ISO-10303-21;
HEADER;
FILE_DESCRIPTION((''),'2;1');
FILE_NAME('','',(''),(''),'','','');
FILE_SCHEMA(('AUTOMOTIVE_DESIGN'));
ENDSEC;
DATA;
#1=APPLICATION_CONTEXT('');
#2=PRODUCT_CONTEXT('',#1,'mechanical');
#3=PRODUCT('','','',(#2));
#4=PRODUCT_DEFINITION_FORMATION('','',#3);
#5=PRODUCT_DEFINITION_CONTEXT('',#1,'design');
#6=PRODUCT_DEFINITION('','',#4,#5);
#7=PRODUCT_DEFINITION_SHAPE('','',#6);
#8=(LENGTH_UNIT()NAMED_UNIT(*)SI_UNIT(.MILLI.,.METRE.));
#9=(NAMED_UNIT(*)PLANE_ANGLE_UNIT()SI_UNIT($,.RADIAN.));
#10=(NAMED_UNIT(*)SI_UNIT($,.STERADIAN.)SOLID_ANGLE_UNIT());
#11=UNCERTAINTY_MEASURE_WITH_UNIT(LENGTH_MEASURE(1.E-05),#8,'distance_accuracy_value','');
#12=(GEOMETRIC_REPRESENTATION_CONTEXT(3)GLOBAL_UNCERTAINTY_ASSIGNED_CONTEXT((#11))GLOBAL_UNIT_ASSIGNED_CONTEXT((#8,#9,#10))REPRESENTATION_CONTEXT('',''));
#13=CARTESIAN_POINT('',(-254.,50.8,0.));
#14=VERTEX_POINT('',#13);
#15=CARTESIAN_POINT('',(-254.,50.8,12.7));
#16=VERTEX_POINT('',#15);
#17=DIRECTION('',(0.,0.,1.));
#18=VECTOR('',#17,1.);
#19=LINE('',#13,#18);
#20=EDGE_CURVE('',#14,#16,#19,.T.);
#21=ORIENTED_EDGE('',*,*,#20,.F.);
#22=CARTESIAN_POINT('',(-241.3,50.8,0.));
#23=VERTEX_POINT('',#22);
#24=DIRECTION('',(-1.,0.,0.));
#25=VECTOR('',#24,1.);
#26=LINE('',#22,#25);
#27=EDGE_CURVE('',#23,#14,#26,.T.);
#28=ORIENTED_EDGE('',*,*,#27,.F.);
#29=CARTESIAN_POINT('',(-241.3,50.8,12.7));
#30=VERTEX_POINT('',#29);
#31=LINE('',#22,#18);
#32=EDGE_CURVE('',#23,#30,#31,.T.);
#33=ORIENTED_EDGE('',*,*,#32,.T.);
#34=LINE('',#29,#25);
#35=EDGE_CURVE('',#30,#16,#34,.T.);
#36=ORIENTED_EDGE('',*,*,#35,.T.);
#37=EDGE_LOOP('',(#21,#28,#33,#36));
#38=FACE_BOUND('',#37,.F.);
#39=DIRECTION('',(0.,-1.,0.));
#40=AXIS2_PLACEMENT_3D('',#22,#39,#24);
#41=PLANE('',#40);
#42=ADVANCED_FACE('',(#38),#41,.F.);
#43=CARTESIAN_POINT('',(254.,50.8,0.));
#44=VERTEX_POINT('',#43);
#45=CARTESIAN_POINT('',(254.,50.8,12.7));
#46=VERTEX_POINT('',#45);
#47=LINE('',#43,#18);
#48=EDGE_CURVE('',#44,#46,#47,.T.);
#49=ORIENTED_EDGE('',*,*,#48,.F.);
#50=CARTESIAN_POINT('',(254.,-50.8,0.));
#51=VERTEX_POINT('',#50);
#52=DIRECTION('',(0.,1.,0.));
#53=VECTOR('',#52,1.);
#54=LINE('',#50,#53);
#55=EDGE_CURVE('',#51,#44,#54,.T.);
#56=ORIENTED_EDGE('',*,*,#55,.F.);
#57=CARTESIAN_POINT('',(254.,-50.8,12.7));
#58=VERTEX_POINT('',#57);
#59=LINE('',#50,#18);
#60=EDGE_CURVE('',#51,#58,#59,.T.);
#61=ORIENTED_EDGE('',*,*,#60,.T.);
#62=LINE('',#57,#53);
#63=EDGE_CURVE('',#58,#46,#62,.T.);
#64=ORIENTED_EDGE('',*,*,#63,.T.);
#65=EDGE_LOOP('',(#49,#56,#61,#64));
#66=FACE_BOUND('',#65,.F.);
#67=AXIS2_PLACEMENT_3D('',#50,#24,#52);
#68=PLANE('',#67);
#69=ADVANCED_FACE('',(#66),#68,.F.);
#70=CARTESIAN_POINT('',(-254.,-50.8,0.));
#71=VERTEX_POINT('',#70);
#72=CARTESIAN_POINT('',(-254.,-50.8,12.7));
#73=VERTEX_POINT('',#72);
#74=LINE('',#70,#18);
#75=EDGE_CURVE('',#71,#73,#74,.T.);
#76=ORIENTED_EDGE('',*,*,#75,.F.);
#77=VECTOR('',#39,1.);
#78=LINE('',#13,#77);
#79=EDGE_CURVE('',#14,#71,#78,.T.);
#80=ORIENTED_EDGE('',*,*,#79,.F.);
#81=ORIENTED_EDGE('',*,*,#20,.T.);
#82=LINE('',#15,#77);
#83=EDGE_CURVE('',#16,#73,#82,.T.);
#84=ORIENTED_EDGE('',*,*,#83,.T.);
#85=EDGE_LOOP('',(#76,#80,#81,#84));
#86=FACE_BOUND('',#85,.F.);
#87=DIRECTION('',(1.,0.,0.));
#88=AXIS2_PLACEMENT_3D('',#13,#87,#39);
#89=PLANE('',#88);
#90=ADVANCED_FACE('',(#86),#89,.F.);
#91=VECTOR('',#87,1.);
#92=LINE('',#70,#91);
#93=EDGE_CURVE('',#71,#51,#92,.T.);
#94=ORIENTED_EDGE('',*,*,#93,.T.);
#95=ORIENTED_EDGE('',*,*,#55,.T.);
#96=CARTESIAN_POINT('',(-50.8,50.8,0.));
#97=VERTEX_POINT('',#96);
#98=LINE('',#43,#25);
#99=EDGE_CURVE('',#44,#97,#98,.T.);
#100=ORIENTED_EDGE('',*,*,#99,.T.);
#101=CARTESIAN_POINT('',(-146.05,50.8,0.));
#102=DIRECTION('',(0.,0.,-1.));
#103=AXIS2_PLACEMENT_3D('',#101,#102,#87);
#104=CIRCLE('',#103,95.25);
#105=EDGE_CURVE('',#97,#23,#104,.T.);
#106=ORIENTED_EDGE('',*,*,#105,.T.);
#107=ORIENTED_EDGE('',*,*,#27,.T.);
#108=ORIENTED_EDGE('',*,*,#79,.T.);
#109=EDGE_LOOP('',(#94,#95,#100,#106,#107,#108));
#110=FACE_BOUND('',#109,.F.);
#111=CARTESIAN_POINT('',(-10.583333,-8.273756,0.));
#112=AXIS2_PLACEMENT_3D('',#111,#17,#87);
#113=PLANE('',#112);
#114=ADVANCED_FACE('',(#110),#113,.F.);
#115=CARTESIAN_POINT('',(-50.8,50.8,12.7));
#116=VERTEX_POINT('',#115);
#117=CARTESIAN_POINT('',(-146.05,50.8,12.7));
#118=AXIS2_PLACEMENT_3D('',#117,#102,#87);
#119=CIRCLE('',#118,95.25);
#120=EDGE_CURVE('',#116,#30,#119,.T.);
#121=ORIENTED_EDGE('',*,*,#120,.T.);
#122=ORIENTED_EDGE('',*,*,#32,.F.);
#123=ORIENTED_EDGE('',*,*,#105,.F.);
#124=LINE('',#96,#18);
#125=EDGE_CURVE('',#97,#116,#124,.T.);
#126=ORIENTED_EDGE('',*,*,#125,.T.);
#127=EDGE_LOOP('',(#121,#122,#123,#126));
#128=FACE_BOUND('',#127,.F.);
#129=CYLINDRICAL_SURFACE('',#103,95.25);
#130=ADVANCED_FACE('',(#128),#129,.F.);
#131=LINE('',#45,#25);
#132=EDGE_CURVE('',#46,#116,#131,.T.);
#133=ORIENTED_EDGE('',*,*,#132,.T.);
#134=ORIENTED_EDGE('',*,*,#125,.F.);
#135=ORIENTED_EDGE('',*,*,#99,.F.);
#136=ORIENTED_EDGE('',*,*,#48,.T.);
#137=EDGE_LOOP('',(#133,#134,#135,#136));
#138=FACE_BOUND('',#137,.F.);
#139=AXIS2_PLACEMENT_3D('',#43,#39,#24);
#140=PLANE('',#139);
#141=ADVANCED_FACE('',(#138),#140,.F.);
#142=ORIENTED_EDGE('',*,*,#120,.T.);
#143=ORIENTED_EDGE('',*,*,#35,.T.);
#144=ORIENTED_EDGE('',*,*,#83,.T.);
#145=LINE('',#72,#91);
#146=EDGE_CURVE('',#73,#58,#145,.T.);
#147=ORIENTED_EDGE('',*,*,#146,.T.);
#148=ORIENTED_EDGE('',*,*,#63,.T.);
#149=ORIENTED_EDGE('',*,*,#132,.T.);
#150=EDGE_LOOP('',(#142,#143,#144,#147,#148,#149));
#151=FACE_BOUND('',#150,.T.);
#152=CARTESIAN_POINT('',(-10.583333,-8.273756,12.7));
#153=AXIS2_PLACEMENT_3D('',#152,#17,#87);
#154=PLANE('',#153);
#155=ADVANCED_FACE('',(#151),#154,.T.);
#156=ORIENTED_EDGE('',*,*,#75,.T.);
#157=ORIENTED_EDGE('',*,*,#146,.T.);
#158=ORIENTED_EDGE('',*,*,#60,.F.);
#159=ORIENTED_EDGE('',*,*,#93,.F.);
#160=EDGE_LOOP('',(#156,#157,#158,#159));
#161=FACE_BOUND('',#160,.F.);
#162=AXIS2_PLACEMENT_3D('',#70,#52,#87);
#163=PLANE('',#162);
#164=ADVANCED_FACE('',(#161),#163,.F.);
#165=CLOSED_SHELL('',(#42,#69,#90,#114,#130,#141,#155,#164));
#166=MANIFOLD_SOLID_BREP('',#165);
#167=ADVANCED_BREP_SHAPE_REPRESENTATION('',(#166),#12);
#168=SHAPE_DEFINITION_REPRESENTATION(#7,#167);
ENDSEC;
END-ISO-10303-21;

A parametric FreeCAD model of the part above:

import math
import FreeCAD as App
import Part
import Sketcher
from FreeCAD import Vector
Q = App.Units.Quantity

doc = App.newDocument("Part")
body = doc.addObject("PartDesign::Body", "Body")

# Sketch on XY plane
sketch1 = doc.addObject("Sketcher::SketchObject", "Sketch")
body.addObject(sketch1)
sketch1.AttachmentSupport = (doc.XY_Plane, [""])
sketch1.MapMode = "FlatFace"
sketch1.addGeometry([
    Part.LineSegment(Vector(-241, 51, 0), Vector(-254, 51, 0)),  # 0
    Part.LineSegment(Vector(-254, 51, 0), Vector(-254, -51, 0)),  # 1
    Part.LineSegment(Vector(-254, -51, 0), Vector(254, -51, 0)),  # 2
    Part.LineSegment(Vector(254, -51, 0), Vector(254, 51, 0)),  # 3
    Part.LineSegment(Vector(254, 51, 0), Vector(-51, 51, 0)),  # 4
    Part.ArcOfCircle(Part.Circle(Vector(-146, 51, 0), Vector(0, 0, 1), 95), math.radians(180), math.radians(360)),  # 5
], False)
sketch1.addConstraint([
    Sketcher.Constraint("Coincident", 0, 2, 1, 1),
    Sketcher.Constraint("Coincident", 1, 2, 2, 1),
    Sketcher.Constraint("Coincident", 2, 2, 3, 1),
    Sketcher.Constraint("Coincident", 3, 2, 4, 1),
    Sketcher.Constraint("Coincident", 4, 2, 5, 2),
    Sketcher.Constraint("Coincident", 5, 1, 0, 1),
    Sketcher.Constraint("Horizontal", 0),
    Sketcher.Constraint("Vertical", 1),
    Sketcher.Constraint("Horizontal", 2),
    Sketcher.Constraint("Vertical", 3),
    Sketcher.Constraint("Horizontal", 4),
    Sketcher.Constraint("Symmetric", 0, 2, 2, 2, -1, 1),
    Sketcher.Constraint("Horizontal", 5, 3, 0, 2),
    Sketcher.Constraint("Horizontal", 0, 2, 3, 2),
    Sketcher.Constraint("DistanceX", 2, 1, 2, 2, Q("20 in")),
    Sketcher.Constraint("DistanceX", 4, 2, 4, 1, Q("12 in")),
    Sketcher.Constraint("DistanceY", 1, 2, 1, 1, Q("4 in")),
    Sketcher.Constraint("Radius", 5, Q("3.75 in")),
])
pad1 = doc.addObject("PartDesign::Pad", "Pad")
body.addObject(pad1)
pad1.Profile = sketch1
pad1.Length = Q("0.5 in")

doc.recompute()
